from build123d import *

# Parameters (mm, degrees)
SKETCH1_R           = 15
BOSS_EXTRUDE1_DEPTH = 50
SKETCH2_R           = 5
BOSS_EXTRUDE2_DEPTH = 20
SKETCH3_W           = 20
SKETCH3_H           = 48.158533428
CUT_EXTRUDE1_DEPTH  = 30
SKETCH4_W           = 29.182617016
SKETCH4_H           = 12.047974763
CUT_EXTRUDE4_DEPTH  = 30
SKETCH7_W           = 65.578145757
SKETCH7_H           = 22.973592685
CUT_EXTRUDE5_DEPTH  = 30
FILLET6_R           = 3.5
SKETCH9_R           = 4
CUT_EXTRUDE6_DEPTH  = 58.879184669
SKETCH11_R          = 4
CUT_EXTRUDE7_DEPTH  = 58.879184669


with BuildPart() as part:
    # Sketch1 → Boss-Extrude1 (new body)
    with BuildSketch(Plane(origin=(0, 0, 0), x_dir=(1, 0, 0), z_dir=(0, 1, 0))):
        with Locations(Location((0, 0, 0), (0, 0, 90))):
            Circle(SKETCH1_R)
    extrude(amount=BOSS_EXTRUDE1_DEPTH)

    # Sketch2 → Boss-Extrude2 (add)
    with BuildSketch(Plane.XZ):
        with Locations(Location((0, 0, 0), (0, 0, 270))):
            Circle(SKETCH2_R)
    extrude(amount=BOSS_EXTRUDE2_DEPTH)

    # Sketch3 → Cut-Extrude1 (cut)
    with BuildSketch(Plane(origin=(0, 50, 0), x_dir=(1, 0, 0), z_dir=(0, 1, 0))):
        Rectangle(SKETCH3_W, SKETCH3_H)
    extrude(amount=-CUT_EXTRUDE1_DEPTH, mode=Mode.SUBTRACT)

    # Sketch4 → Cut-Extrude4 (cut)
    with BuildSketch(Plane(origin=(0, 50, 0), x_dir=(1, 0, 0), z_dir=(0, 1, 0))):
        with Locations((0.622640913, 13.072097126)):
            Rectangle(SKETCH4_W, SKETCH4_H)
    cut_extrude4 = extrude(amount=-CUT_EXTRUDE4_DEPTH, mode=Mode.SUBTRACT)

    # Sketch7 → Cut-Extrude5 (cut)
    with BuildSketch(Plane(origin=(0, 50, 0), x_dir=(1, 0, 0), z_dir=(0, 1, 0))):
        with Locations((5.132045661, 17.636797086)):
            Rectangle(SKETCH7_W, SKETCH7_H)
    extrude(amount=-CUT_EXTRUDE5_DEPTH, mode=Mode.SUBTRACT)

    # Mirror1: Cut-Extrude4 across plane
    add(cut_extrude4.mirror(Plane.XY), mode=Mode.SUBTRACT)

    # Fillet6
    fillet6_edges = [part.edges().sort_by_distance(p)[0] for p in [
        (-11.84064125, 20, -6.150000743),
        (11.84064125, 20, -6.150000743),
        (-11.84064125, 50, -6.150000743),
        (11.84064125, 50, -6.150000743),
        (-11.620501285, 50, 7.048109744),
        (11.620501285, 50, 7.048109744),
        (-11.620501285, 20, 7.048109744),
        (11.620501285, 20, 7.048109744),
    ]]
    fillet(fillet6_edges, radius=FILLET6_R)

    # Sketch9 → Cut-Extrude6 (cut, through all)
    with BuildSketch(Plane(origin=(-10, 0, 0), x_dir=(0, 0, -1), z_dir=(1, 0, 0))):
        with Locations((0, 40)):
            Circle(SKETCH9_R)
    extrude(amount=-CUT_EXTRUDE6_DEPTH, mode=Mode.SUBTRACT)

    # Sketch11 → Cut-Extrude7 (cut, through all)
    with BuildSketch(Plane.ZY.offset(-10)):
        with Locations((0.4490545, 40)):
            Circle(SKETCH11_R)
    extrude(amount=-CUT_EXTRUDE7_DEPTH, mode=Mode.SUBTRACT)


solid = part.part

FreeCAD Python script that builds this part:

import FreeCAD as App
import Part
import Sketcher


def edges_at(feature, points):
    """Names of the edges that pass closest to the given points."""
    edges = feature.Shape.Edges
    near = lambda p: min(range(len(edges)), key=lambda i: edges[i].distToShape(Part.Vertex(*p))[0])
    return sorted({f"Edge{near(p) + 1}" for p in points})


def add_polygon(sketch, points):
    """Adds a closed chain of lines whose ends are joined by coincident constraints."""
    first, n = sketch.GeometryCount, len(points)
    for a, b in zip(points, points[1:] + points[:1]):
        sketch.addGeometry(Part.LineSegment(App.Vector(*a, 0), App.Vector(*b, 0)), False)
    for i in range(n):
        sketch.addConstraint(Sketcher.Constraint("Coincident", first + i, 2, first + (i + 1) % n, 1))

doc = App.newDocument("Part")
body = doc.addObject("PartDesign::Body", "Body")

sketch1 = body.newObject("Sketcher::SketchObject", "Sketch")
sketch1.AttachmentSupport = (doc.getObject("XZ_Plane"), [""])
sketch1.MapMode = "FlatFace"
sketch1.addGeometry(Part.Circle(App.Vector(0, 0, 0), App.Vector(0, 0, 1), 15), False)
sketch1.addConstraint([
    Sketcher.Constraint("Coincident", 0, 3, -1, 1),
    Sketcher.Constraint("Diameter", 0, 30.0),
])
pad1 = body.newObject("PartDesign::Pad", "Pad")
pad1.Profile = sketch1
pad1.Length = 50
pad1.Reversed = True

sketch2 = body.newObject("Sketcher::SketchObject", "Sketch001")
sketch2.AttachmentSupport = (doc.getObject("XZ_Plane"), [""])
sketch2.MapMode = "FlatFace"
sketch2.addGeometry(Part.Circle(App.Vector(0, 0, 0), App.Vector(0, 0, 1), 5), False)
sketch2.addConstraint([
    Sketcher.Constraint("Coincident", 0, 3, -1, 1),
    Sketcher.Constraint("Diameter", 0, 10.0),
])
pad2 = body.newObject("PartDesign::Pad", "Pad001")
pad2.Profile = sketch2
pad2.Length = 20

sketch3 = body.newObject("Sketcher::SketchObject", "Sketch002")
sketch3.AttachmentSupport = (doc.getObject("XZ_Plane"), [""])
sketch3.MapMode = "FlatFace"
sketch3.AttachmentOffset = App.Placement(App.Vector(0, 0, -50), App.Rotation())
add_polygon(sketch3, [(-10, -24.079267), (-10, 24.079267), (10, 24.079267), (10, -24.079267)])
sketch3.addConstraint([
    Sketcher.Constraint("Vertical", 0),
    Sketcher.Constraint("Horizontal", 1),
    Sketcher.Constraint("Vertical", 2),
    Sketcher.Constraint("Horizontal", 3),
    Sketcher.Constraint("Symmetric", 0, 2, 2, 2, -1, 1),
    Sketcher.Constraint("DistanceX", 1, 1, 1, 2, 20.0),
    Sketcher.Constraint("DistanceY", 0, 1, 0, 2, 48.158533),
])
pocket1 = body.newObject("PartDesign::Pocket", "Pocket")
pocket1.Profile = sketch3
pocket1.Length = 30
pocket1.Reversed = True

sketch4 = body.newObject("Sketcher::SketchObject", "Sketch003")
sketch4.AttachmentSupport = (doc.getObject("XZ_Plane"), [""])
sketch4.MapMode = "FlatFace"
sketch4.AttachmentOffset = App.Placement(App.Vector(0, 0, -50), App.Rotation())
add_polygon(sketch4, [(-13.968668, -19.096085), (-13.968668, -7.04811), (15.213949, -7.04811), (15.213949, -19.096085)])
sketch4.addConstraint([
    Sketcher.Constraint("Vertical", 0),
    Sketcher.Constraint("Horizontal", 1),
    Sketcher.Constraint("Vertical", 2),
    Sketcher.Constraint("Horizontal", 3),
    Sketcher.Constraint("DistanceX", 1, 1, 1, 2, 29.182617),
    Sketcher.Constraint("DistanceY", 0, 1, 0, 2, 12.047975),
    Sketcher.Constraint("DistanceY", 0, 2, -1, 1, 7.04811),
    Sketcher.Constraint("DistanceX", -1, 1, 1, 2, 15.213949),
])
pocket2 = body.newObject("PartDesign::Pocket", "Pocket001")
pocket2.Profile = sketch4
pocket2.Length = 30
pocket2.Reversed = True

sketch5 = body.newObject("Sketcher::SketchObject", "Sketch004")
sketch5.AttachmentSupport = (doc.getObject("XZ_Plane"), [""])
sketch5.MapMode = "FlatFace"
sketch5.AttachmentOffset = App.Placement(App.Vector(0, 0, -50), App.Rotation())
add_polygon(sketch5, [(-27.657027, -29.123593), (-27.657027, -6.150001), (37.921119, -6.150001), (37.921119, -29.123593)])
sketch5.addConstraint([
    Sketcher.Constraint("Vertical", 0),
    Sketcher.Constraint("Horizontal", 1),
    Sketcher.Constraint("Vertical", 2),
    Sketcher.Constraint("Horizontal", 3),
    Sketcher.Constraint("DistanceY", 0, 2, -1, 1, 6.150001),
    Sketcher.Constraint("DistanceX", 1, 1, 1, 2, 65.578146),
    Sketcher.Constraint("DistanceY", 0, 1, 0, 2, 22.973593),
    Sketcher.Constraint("DistanceX", -1, 1, 1, 2, 37.921119),
])
pocket3 = body.newObject("PartDesign::Pocket", "Pocket002")
pocket3.Profile = sketch5
pocket3.Length = 30
pocket3.Reversed = True
doc.recompute()

mirrored = body.newObject("PartDesign::Mirrored", "Mirrored")
mirrored.Originals = [pocket2]
mirrored.MirrorPlane = (doc.getObject("XY_Plane"), [""])
body.Tip = mirrored
doc.recompute()

fillet = body.newObject("PartDesign::Fillet", "Fillet")
fillet.Base = (mirrored, edges_at(mirrored, [
    (-11.841, 20, -6.15),
    (11.841, 20, -6.15),
    (-11.841, 50, -6.15),
    (11.841, 50, -6.15),
    (-11.621, 50, 7.048),
    (11.621, 50, 7.048),
    (-11.621, 20, 7.048),
    (11.621, 20, 7.048),
]))
fillet.Radius = 3.5

sketch6 = body.newObject("Sketcher::SketchObject", "Sketch005")
sketch6.AttachmentSupport = (doc.getObject("YZ_Plane"), [""])
sketch6.MapMode = "FlatFace"
sketch6.AttachmentOffset = App.Placement(App.Vector(0, 0, -10), App.Rotation())
sketch6.addGeometry(Part.Circle(App.Vector(40, 0, 0), App.Vector(0, 0, 1), 4), False)
sketch6.addConstraint([
    Sketcher.Constraint("PointOnObject", 0, 3, -1),
    Sketcher.Constraint("Diameter", 0, 8.0),
    Sketcher.Constraint("DistanceX", -1, 1, 0, 3, 40.0),
])
pocket4 = body.newObject("PartDesign::Pocket", "Pocket003")
pocket4.Profile = sketch6
pocket4.Type = "ThroughAll"

sketch7 = body.newObject("Sketcher::SketchObject", "Sketch006")
sketch7.AttachmentSupport = (doc.getObject("YZ_Plane"), [""])
sketch7.MapMode = "FlatFace"
sketch7.AttachmentOffset = App.Placement(App.Vector(0, 0, 10), App.Rotation())
sketch7.addGeometry(Part.Circle(App.Vector(40, 0.449055, 0), App.Vector(0, 0, 1), 4), False)
sketch7.addConstraint([
    Sketcher.Constraint("Diameter", 0, 8.0),
    Sketcher.Constraint("DistanceX", -1, 1, 0, 3, 40.0),
    Sketcher.Constraint("DistanceY", -1, 1, 0, 3, 0.449055),
])
pocket5 = body.newObject("PartDesign::Pocket", "Pocket004")
pocket5.Profile = sketch7
pocket5.Type = "ThroughAll"
pocket5.Reversed = True

doc.recompute()
